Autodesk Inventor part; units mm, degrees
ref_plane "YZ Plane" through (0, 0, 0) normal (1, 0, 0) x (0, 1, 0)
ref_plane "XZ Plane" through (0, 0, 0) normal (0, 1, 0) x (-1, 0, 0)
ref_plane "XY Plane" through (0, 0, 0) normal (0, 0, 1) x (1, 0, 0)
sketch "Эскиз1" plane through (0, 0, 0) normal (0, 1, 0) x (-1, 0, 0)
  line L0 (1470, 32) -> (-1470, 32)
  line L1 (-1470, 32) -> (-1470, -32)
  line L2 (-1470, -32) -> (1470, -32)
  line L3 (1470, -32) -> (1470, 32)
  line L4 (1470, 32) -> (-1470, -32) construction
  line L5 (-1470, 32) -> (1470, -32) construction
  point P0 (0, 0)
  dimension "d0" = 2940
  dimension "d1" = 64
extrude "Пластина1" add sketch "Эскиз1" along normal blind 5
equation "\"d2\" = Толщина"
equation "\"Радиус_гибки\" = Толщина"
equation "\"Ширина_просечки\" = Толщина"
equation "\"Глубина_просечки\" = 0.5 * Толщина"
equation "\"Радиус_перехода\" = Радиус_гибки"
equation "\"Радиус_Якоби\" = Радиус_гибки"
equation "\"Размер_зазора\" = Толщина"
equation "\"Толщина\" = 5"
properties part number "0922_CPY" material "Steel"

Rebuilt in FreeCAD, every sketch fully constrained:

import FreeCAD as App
import Part
import Sketcher

V = App.Vector

doc = App.newDocument("Part")
params = doc.addObject("Spreadsheet::Sheet", "Params")
for row, (alias, value) in enumerate([
    ("sketch1_width", "2940 mm"),
    ("sketch1_height", "64 mm"),
    ("pad1_length", "5 mm"),
], start=1):
    params.set(f"A{row}", alias)
    params.set(f"B{row}", "=" + value)
    params.setAlias(f"B{row}", alias)

body = doc.addObject("PartDesign::Body", "Body")

# Sketch on XZ plane
sketch1 = doc.addObject("Sketcher::SketchObject", "Sketch")
body.addObject(sketch1)
sketch1.AttachmentSupport = (doc.XZ_Plane, [""])
sketch1.MapMode = "FlatFace"
sketch1.addGeometry([
    Part.LineSegment(V(-1470, -32, 0), V(-1470, 32, 0)),
    Part.LineSegment(V(-1470, 32, 0), V(1470, 32, 0)),
    Part.LineSegment(V(1470, 32, 0), V(1470, -32, 0)),
    Part.LineSegment(V(1470, -32, 0), V(-1470, -32, 0)),
], False)
sketch1.addConstraint([
    Sketcher.Constraint("Coincident", 0, 2, 1, 1),
    Sketcher.Constraint("Coincident", 1, 2, 2, 1),
    Sketcher.Constraint("Coincident", 2, 2, 3, 1),
    Sketcher.Constraint("Coincident", 3, 2, 0, 1),
    Sketcher.Constraint("Vertical", 0),
    Sketcher.Constraint("Horizontal", 1),
    Sketcher.Constraint("Vertical", 2),
    Sketcher.Constraint("Horizontal", 3),
    Sketcher.Constraint("Symmetric", 0, 2, 2, 2, -1, 1),
    Sketcher.Constraint("DistanceX", 1, 1, 1, 2, 2940.0),
    Sketcher.Constraint("DistanceY", 0, 1, 0, 2, 64.0),
])
sketch1.setExpression("Constraints[9]", "Params.sketch1_width")
sketch1.setExpression("Constraints[10]", "Params.sketch1_height")
pad1 = doc.addObject("PartDesign::Pad", "Pad")
body.addObject(pad1)
pad1.Profile = sketch1
pad1.setExpression("Length", "Params.pad1_length")
pad1.Reversed = True

doc.recompute()
